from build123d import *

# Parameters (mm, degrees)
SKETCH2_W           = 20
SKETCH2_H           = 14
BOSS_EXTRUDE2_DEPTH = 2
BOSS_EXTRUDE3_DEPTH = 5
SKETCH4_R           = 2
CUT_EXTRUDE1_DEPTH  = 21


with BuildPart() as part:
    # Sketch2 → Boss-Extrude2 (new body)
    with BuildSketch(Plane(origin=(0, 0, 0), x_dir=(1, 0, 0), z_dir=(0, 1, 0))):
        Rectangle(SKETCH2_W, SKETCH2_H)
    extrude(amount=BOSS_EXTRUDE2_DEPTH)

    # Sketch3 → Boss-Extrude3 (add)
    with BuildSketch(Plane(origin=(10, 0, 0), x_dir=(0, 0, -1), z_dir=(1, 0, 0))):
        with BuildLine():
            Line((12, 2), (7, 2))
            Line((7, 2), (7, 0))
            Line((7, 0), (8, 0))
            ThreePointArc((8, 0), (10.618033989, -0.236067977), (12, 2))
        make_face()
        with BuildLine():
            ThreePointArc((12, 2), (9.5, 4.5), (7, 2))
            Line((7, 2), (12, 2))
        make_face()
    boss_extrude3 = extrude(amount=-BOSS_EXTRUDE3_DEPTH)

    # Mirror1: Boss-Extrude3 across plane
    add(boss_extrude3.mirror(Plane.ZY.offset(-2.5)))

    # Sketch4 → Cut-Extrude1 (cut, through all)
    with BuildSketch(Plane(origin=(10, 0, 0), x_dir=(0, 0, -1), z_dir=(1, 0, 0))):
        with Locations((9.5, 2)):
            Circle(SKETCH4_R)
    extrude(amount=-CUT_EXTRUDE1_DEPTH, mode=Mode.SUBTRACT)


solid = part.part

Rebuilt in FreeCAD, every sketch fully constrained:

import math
import FreeCAD as App
import Part
import Sketcher

V = App.Vector


def add_polygon(sketch, points):
    """Adds a closed chain of lines whose ends are joined by coincident constraints."""
    first, n = sketch.GeometryCount, len(points)
    for a, b in zip(points, points[1:] + points[:1]):
        sketch.addGeometry(Part.LineSegment(App.Vector(*a, 0), App.Vector(*b, 0)), False)
    for i in range(n):
        sketch.addConstraint(Sketcher.Constraint("Coincident", first + i, 2, first + (i + 1) % n, 1))

doc = App.newDocument("Part")
body = doc.addObject("PartDesign::Body", "Body")

# Sketch on XZ plane
sketch1 = doc.addObject("Sketcher::SketchObject", "Sketch")
body.addObject(sketch1)
sketch1.AttachmentSupport = (doc.XZ_Plane, [""])
sketch1.MapMode = "FlatFace"
add_polygon(sketch1, [(-10, -7), (-10, 7), (10, 7), (10, -7)])  # lines 0-3
sketch1.addConstraint(Sketcher.Constraint("Vertical", 0))
sketch1.addConstraint(Sketcher.Constraint("Horizontal", 1))
sketch1.addConstraint(Sketcher.Constraint("Vertical", 2))
sketch1.addConstraint(Sketcher.Constraint("Horizontal", 3))
sketch1.addConstraint(Sketcher.Constraint("Symmetric", 0, 2, 2, 2, -1, 1))
sketch1.addConstraint(Sketcher.Constraint("DistanceX", 1, 1, 1, 2, 20.0))
sketch1.addConstraint(Sketcher.Constraint("DistanceY", 0, 1, 0, 2, 14.0))
pad1 = doc.addObject("PartDesign::Pad", "Pad")
body.addObject(pad1)
pad1.Profile = sketch1
pad1.Length = 2
pad1.Reversed = True

# Sketch on YZ plane
sketch2 = doc.addObject("Sketcher::SketchObject", "Sketch001")
body.addObject(sketch2)
sketch2.AttachmentSupport = (doc.YZ_Plane, [""])
sketch2.MapMode = "FlatFace"
sketch2.AttachmentOffset = App.Placement(V(0, 0, 10), App.Rotation())
sketch2.addGeometry(Part.LineSegment(V(2, -7, 0), V(0, -7, 0)), False)
sketch2.addGeometry(Part.LineSegment(V(0, -7, 0), V(0, -8, 0)), False)
sketch2.addGeometry(Part.ArcOfCircle(Part.Circle(V(2, -9.5, 0), V(0, 0, 1), 2.5), math.radians(143), math.radians(270)), False)
sketch2.addGeometry(Part.ArcOfCircle(Part.Circle(V(2, -9.5, 0), V(0, 0, 1), 2.5), math.radians(-90), math.radians(90)), False)
sketch2.addConstraint(Sketcher.Constraint("Coincident", 0, 2, 1, 1))
sketch2.addConstraint(Sketcher.Constraint("Coincident", 1, 2, 2, 1))
sketch2.addConstraint(Sketcher.Constraint("Tangent", 2, 2, 3, 1))
sketch2.addConstraint(Sketcher.Constraint("Tangent", 3, 2, 0, 1))
sketch2.addConstraint(Sketcher.Constraint("Horizontal", 0))
sketch2.addConstraint(Sketcher.Constraint("Vertical", 1))
sketch2.addConstraint(Sketcher.Constraint("Equal", 2, 3))
sketch2.addConstraint(Sketcher.Constraint("PointOnObject", 0, 2, -2))
sketch2.addConstraint(Sketcher.Constraint("Vertical", 3, 3, 2, 2))
sketch2.addConstraint(Sketcher.Constraint("Radius", 2, 2.5))
sketch2.addConstraint(Sketcher.Constraint("DistanceX", 0, 2, 0, 1, 2.0))
sketch2.addConstraint(Sketcher.Constraint("DistanceY", 0, 2, -1, 1, 7.0))
pad2 = doc.addObject("PartDesign::Pad", "Pad001")
body.addObject(pad2)
pad2.Profile = sketch2
pad2.Length = 5
pad2.Reversed = True
doc.recompute()

datumplane = doc.addObject("PartDesign::Plane", "DatumPlane")
body.addObject(datumplane)
datumplane.AttachmentSupport = (doc.YZ_Plane, [""])
datumplane.MapMode = "FlatFace"
datumplane.AttachmentOffset = App.Placement(V(0, 0, 2.5), App.Rotation())
mirrored = doc.addObject("PartDesign::Mirrored", "Mirrored")
body.addObject(mirrored)
mirrored.Originals = [pad2]
mirrored.MirrorPlane = (datumplane, [""])
body.Tip = mirrored

# Sketch on YZ plane
sketch3 = doc.addObject("Sketcher::SketchObject", "Sketch002")
body.addObject(sketch3)
sketch3.AttachmentSupport = (doc.YZ_Plane, [""])
sketch3.MapMode = "FlatFace"
sketch3.AttachmentOffset = App.Placement(V(0, 0, 10), App.Rotation())
sketch3.addGeometry(Part.Circle(V(2, -9.5, 0), V(0, 0, 1), 2), False)
sketch3.addConstraint(Sketcher.Constraint("Diameter", 0, 4.0))
sketch3.addConstraint(Sketcher.Constraint("DistanceX", -1, 1, 0, 3, 2.0))
sketch3.addConstraint(Sketcher.Constraint("DistanceY", 0, 3, -1, 1, 9.5))
pocket1 = doc.addObject("PartDesign::Pocket", "Pocket")
body.addObject(pocket1)
pocket1.Profile = sketch3
pocket1.Type = "ThroughAll"

doc.recompute()
